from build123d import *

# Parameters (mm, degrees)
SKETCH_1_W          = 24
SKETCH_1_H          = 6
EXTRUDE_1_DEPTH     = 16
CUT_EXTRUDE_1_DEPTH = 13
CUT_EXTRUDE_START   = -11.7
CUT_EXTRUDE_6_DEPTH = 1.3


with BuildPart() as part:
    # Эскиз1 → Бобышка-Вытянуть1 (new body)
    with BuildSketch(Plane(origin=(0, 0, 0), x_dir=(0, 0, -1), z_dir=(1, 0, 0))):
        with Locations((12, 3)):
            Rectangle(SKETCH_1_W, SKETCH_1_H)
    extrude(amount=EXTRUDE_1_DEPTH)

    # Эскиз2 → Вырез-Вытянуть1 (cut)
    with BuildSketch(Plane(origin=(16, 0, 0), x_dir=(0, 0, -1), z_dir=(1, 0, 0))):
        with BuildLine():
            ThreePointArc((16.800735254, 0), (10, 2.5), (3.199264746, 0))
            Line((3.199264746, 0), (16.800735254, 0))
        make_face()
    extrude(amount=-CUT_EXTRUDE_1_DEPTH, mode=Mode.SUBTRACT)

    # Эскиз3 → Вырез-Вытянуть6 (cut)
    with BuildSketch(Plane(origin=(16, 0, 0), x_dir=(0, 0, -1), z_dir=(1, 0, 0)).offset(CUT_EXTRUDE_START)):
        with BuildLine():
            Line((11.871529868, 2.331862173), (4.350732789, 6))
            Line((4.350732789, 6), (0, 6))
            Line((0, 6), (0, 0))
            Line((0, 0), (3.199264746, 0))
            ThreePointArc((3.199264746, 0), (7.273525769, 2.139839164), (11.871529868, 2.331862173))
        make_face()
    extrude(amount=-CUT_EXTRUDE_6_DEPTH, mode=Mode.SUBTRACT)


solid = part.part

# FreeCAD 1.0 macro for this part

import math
import FreeCAD as App
import Part
import Sketcher

V = App.Vector
Q = App.Units.Quantity


def add_polygon(sketch, points):
    """Adds a closed chain of lines whose ends are joined by coincident constraints."""
    first, n = sketch.GeometryCount, len(points)
    for a, b in zip(points, points[1:] + points[:1]):
        sketch.addGeometry(Part.LineSegment(App.Vector(*a, 0), App.Vector(*b, 0)), False)
    for i in range(n):
        sketch.addConstraint(Sketcher.Constraint("Coincident", first + i, 2, first + (i + 1) % n, 1))

doc = App.newDocument("Part")
body = doc.addObject("PartDesign::Body", "Body")

sketch1 = doc.addObject("Sketcher::SketchObject", "Sketch")
body.addObject(sketch1)
sketch1.AttachmentSupport = (doc.YZ_Plane, [""])
sketch1.MapMode = "FlatFace"
add_polygon(sketch1, [(6, 0), (0, 0), (0, -24), (6, -24)])
sketch1.addConstraint([
    Sketcher.Constraint("Horizontal", 0),
    Sketcher.Constraint("Vertical", 1),
    Sketcher.Constraint("Horizontal", 2),
    Sketcher.Constraint("Vertical", 3),
    Sketcher.Constraint("Coincident", 0, 2, -1, 1),
    Sketcher.Constraint("DistanceX", 0, 2, 0, 1, Q("6 mm")),
    Sketcher.Constraint("DistanceY", 1, 2, 1, 1, Q("24 mm")),
])
pad1 = doc.addObject("PartDesign::Pad", "Pad")
body.addObject(pad1)
pad1.Profile = sketch1
pad1.Length = 16

sketch2 = doc.addObject("Sketcher::SketchObject", "Sketch001")
body.addObject(sketch2)
sketch2.AttachmentSupport = (doc.YZ_Plane, [""])
sketch2.MapMode = "FlatFace"
sketch2.AttachmentOffset = App.Placement(V(0, 0, 16), App.Rotation())
sketch2.addGeometry([
    Part.ArcOfCircle(Part.Circle(V(-8, -10, 0), V(0, 0, 1), 10.5), math.radians(-40.367594), math.radians(40.367594)),
    Part.LineSegment(V(0, -3.199265, 0), V(0, -16.800735, 0)),
], False)
sketch2.addConstraint([
    Sketcher.Constraint("Coincident", 0, 1, 1, 2),
    Sketcher.Constraint("Coincident", 1, 1, 0, 2),
    Sketcher.Constraint("Vertical", 1),
    Sketcher.Constraint("PointOnObject", 0, 1, -2),
    Sketcher.Constraint("Radius", 0, Q("10.5 mm")),
    Sketcher.Constraint("DistanceX", 0, 3, -1, 1, Q("8 mm")),
    Sketcher.Constraint("DistanceY", 0, 3, -1, 1, Q("10 mm")),
])
pocket1 = doc.addObject("PartDesign::Pocket", "Pocket")
body.addObject(pocket1)
pocket1.Profile = sketch2
pocket1.Length = 13

sketch3 = doc.addObject("Sketcher::SketchObject", "Sketch002")
body.addObject(sketch3)
sketch3.AttachmentSupport = (doc.YZ_Plane, [""])
sketch3.MapMode = "FlatFace"
sketch3.AttachmentOffset = App.Placement(V(0, 0, 4.3), App.Rotation())
sketch3.addGeometry([
    Part.LineSegment(V(2.331862, -11.87153, 0), V(6, -4.350733, 0)),
    Part.LineSegment(V(6, -4.350733, 0), V(6, 0, 0)),
    Part.LineSegment(V(6, 0, 0), V(0, 0, 0)),
    Part.LineSegment(V(0, 0, 0), V(0, -3.199265, 0)),
    Part.ArcOfCircle(Part.Circle(V(-8, -10, 0), V(0, 0, 1), 10.5), math.radians(-10.267316), math.radians(40.367594)),
], False)
sketch3.addConstraint([
    Sketcher.Constraint("Coincident", 0, 2, 1, 1),
    Sketcher.Constraint("Coincident", 1, 2, 2, 1),
    Sketcher.Constraint("Coincident", 2, 2, 3, 1),
    Sketcher.Constraint("Coincident", 3, 2, 4, 2),
    Sketcher.Constraint("Coincident", 4, 1, 0, 1),
    Sketcher.Constraint("Vertical", 1),
    Sketcher.Constraint("Horizontal", 2),
    Sketcher.Constraint("Vertical", 3),
    Sketcher.Constraint("Coincident", 2, 2, -1, 1),
    Sketcher.Constraint("Radius", 4, Q("10.5 mm")),
    Sketcher.Constraint("DistanceX", 2, 2, 2, 1, Q("6 mm")),
    Sketcher.Constraint("Angle", 0, Q("64 deg")),
    Sketcher.Constraint("DistanceX", 4, 3, -1, 1, Q("8 mm")),
    Sketcher.Constraint("DistanceY", 4, 3, -1, 1, Q("10 mm")),
    Sketcher.Constraint("DistanceY", 1, 1, 1, 2, Q("4.350733 mm")),
])
pocket2 = doc.addObject("PartDesign::Pocket", "Pocket001")
body.addObject(pocket2)
pocket2.Profile = sketch3
pocket2.Length = 1.3

doc.recompute()
